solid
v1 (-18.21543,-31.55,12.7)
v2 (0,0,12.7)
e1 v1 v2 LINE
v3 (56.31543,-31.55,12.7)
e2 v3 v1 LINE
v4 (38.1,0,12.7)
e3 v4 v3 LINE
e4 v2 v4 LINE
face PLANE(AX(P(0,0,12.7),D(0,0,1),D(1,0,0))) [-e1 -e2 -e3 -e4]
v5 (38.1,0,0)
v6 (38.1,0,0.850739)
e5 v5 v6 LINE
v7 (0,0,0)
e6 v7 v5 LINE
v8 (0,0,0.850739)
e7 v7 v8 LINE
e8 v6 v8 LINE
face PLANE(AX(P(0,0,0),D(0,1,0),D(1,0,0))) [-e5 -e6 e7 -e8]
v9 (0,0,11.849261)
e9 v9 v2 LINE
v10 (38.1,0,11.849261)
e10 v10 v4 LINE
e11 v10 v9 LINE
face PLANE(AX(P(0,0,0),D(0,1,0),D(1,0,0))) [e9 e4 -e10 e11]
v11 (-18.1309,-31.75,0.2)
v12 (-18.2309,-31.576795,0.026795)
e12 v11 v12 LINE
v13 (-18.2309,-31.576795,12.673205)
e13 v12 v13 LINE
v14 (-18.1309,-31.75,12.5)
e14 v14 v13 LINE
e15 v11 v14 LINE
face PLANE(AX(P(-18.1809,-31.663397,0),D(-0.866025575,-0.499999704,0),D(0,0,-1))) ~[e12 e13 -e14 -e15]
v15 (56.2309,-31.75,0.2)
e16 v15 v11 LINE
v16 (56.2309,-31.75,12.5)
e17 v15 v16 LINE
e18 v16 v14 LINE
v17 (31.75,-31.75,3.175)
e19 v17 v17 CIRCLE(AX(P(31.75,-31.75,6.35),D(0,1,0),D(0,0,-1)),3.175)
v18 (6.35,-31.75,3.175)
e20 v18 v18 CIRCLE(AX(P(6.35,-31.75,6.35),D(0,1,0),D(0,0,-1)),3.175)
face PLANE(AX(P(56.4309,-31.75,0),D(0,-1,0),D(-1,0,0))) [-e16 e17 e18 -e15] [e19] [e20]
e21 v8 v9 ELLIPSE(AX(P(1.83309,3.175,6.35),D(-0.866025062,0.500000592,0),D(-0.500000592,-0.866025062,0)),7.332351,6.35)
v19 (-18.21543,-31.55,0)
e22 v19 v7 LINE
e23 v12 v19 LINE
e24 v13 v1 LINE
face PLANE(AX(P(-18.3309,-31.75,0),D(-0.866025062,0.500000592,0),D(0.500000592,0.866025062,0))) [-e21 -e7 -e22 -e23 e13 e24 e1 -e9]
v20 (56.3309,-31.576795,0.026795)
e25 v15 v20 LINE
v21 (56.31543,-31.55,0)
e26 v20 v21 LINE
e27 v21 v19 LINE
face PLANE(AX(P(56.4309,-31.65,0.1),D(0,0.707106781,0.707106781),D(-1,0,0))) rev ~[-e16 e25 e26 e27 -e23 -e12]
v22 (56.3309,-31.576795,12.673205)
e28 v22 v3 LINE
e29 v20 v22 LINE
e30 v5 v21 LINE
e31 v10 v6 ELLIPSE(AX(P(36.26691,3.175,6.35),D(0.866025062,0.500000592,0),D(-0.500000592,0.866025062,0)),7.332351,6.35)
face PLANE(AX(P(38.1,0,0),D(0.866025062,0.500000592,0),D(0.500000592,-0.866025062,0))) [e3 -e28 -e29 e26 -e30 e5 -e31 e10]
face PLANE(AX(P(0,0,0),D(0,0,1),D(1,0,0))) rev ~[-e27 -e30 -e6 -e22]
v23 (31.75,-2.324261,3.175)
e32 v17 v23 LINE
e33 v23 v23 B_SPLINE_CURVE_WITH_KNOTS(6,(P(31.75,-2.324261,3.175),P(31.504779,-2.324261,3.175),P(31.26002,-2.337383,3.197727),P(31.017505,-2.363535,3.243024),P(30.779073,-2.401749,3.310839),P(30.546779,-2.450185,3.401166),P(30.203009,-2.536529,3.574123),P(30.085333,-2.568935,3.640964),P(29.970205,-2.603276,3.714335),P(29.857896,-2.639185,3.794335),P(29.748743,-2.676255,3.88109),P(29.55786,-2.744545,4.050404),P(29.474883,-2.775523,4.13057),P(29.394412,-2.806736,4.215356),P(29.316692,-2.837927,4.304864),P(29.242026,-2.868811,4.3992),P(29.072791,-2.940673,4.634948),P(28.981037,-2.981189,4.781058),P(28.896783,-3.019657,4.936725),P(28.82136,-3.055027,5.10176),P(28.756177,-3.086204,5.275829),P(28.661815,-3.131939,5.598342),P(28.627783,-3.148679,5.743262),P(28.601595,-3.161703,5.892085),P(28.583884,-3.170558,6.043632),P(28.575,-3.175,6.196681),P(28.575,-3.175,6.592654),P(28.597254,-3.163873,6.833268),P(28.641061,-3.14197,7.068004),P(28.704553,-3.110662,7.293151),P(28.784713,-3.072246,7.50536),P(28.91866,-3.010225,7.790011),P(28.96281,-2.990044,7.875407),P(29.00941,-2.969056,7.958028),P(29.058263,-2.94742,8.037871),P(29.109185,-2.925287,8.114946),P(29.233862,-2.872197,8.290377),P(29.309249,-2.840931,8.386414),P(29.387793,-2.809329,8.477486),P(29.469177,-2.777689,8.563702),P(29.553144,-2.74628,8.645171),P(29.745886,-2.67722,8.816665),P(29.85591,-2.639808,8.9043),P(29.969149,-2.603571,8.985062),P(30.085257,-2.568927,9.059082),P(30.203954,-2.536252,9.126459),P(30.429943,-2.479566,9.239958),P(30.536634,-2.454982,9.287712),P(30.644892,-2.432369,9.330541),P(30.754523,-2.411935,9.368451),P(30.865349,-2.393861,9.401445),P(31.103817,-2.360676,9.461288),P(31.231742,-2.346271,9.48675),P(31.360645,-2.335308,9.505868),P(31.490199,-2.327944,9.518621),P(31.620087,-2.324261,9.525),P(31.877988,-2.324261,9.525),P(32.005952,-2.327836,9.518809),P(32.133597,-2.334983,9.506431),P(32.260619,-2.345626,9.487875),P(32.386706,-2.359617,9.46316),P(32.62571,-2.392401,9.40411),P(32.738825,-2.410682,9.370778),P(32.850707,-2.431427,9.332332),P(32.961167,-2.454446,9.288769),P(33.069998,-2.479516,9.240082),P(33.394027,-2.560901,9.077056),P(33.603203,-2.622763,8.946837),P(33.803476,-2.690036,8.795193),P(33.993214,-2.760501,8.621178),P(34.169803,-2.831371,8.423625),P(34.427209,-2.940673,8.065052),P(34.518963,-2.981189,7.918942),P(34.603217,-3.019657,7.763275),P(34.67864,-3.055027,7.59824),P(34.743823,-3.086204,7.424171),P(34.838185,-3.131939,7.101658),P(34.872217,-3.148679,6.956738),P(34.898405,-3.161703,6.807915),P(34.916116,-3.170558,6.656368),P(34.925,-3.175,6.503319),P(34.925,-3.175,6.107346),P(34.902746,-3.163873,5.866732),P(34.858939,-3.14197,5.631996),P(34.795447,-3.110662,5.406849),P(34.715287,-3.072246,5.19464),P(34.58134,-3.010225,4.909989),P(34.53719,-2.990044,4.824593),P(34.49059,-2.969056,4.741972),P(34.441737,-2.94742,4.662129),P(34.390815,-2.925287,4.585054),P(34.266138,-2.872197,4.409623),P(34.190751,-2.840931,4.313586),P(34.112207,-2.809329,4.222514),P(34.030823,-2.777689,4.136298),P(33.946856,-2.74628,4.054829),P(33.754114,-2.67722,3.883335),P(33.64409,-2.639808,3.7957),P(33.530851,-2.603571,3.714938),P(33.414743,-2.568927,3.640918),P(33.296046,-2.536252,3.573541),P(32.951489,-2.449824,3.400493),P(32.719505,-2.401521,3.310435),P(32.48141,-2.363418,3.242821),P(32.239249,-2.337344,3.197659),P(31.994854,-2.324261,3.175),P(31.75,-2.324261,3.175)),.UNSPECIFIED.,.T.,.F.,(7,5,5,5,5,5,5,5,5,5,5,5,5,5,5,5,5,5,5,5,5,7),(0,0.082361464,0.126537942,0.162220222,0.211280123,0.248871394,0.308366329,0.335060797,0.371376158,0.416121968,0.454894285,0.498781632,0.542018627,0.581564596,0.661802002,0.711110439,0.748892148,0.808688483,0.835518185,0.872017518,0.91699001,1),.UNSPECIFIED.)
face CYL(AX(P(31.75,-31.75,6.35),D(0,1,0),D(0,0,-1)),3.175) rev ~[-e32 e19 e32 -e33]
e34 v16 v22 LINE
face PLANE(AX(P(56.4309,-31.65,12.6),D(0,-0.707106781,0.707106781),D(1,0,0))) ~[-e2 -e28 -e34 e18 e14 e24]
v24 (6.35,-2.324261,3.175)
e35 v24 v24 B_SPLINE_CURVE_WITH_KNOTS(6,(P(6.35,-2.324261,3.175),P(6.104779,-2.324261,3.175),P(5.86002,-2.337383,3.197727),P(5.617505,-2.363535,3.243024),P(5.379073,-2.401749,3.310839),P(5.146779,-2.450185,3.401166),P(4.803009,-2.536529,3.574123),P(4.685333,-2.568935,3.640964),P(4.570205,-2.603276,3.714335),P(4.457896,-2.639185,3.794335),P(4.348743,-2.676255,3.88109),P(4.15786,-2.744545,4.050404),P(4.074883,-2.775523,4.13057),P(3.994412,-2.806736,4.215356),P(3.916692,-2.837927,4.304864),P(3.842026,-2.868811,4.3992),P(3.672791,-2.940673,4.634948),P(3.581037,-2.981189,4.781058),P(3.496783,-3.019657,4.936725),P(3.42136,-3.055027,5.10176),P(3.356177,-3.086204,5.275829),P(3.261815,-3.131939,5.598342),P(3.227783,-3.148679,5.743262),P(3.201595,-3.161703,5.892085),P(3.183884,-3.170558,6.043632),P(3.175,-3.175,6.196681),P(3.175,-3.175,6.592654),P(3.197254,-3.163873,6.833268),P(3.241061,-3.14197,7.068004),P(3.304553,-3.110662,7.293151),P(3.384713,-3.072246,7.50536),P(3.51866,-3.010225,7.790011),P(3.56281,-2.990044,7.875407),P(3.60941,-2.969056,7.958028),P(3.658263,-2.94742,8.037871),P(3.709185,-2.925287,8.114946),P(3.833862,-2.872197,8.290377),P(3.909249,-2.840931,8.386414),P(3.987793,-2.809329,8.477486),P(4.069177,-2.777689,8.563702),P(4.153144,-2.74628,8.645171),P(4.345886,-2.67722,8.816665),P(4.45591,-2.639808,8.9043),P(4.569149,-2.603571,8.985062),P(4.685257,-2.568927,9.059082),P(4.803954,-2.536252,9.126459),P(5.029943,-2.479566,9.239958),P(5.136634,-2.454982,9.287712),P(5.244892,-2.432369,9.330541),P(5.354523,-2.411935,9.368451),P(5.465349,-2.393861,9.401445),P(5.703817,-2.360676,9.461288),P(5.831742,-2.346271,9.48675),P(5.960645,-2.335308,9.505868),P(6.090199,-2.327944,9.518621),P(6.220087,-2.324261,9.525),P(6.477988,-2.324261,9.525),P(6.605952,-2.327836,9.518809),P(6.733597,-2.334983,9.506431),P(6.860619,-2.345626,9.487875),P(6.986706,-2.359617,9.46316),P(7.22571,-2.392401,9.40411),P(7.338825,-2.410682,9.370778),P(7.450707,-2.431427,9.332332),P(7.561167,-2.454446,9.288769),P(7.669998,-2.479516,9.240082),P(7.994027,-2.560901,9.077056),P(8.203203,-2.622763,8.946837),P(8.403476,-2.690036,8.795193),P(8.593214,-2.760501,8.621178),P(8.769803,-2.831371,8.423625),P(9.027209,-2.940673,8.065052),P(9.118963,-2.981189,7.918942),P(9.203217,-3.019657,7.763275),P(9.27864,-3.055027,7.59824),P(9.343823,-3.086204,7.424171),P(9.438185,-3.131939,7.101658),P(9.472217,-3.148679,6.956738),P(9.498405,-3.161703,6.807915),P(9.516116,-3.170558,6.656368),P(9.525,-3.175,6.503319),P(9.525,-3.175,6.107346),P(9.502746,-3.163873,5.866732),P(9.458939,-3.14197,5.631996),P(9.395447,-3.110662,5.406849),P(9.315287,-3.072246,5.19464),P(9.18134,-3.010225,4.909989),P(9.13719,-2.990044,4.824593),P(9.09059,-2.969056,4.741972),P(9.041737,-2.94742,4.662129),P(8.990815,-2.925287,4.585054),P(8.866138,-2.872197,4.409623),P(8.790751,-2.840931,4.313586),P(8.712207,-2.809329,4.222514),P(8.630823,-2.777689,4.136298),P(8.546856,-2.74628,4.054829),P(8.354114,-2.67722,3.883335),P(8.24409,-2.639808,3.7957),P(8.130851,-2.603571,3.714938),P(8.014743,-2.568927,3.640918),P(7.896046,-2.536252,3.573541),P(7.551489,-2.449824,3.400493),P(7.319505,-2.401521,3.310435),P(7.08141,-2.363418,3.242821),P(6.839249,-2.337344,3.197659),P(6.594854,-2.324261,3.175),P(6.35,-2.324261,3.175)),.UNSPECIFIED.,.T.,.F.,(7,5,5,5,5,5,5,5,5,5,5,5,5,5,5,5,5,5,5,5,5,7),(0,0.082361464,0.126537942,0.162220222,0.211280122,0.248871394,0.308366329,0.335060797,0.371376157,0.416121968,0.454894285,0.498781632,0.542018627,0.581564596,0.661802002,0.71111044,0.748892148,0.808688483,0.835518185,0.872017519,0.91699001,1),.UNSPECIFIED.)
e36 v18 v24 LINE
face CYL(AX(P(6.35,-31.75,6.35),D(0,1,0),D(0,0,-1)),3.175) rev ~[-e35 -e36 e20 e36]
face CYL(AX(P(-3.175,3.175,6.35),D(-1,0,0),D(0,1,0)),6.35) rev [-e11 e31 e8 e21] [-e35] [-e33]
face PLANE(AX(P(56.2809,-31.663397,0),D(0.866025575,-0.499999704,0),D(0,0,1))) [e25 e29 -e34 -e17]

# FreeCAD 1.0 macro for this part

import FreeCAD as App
import Part
import Sketcher

V = App.Vector
Q = App.Units.Quantity


def edges_at(feature, points):
    """Names of the edges that pass closest to the given points."""
    edges = feature.Shape.Edges
    near = lambda p: min(range(len(edges)), key=lambda i: edges[i].distToShape(Part.Vertex(*p))[0])
    return sorted({f"Edge{near(p) + 1}" for p in points})

doc = App.newDocument("Part")
params = doc.addObject("Spreadsheet::Sheet", "Params")
for row, (alias, value) in enumerate([
    ("sketch1_width", "1.5 in"),
    ("pad1_length", "0.5 in"),
    ("sketch2_diameter", "0.5 in"),
    ("sketch3_diameter", "0.25 in"),
    ("hole_diameter", "0.25 in"),
    ("chamfer_size", "0.2 mm"),
], start=1):
    params.set(f"A{row}", alias)
    params.set(f"B{row}", "=" + value)
    params.setAlias(f"B{row}", alias)

body = doc.addObject("PartDesign::Body", "Body")

sketch1 = body.newObject("Sketcher::SketchObject", "Sketch")
sketch1.AttachmentSupport = (doc.getObject("XY_Plane"), [""])
sketch1.MapMode = "FlatFace"
sketch1.addGeometry(Part.LineSegment(V(38, 0, 0), V(0, 0, 0)), False)
sketch1.addGeometry(Part.LineSegment(V(0, 0, 0), V(-18, -32, 0)), False)
sketch1.addGeometry(Part.LineSegment(V(-18, -32, 0), V(56, -32, 0)), False)
sketch1.addGeometry(Part.LineSegment(V(56, -32, 0), V(38, 0, 0)), False)
sketch1.addConstraint(Sketcher.Constraint("Coincident", 0, 2, 1, 1))
sketch1.addConstraint(Sketcher.Constraint("Coincident", 1, 2, 2, 1))
sketch1.addConstraint(Sketcher.Constraint("Coincident", 2, 2, 3, 1))
sketch1.addConstraint(Sketcher.Constraint("Coincident", 3, 2, 0, 1))
sketch1.addConstraint(Sketcher.Constraint("Horizontal", 0))
sketch1.addConstraint(Sketcher.Constraint("Horizontal", 2))
sketch1.addConstraint(Sketcher.Constraint("Coincident", 0, 2, -1, 1))
sketch1.addConstraint(Sketcher.Constraint("Equal", 1, 3))
sketch1.addConstraint(Sketcher.Constraint("DistanceX", 0, 2, 0, 1, Q("1.5 in")))
sketch1.addConstraint(Sketcher.Constraint("DistanceY", 1, 2, -1, 1, Q("1.25 in")))
sketch1.addConstraint(Sketcher.Constraint("Angle", 1, Q("-120 deg")))
sketch1.setExpression("Constraints[8]", "Params.sketch1_width")
pad1 = body.newObject("PartDesign::Pad", "Pad")
pad1.Profile = sketch1
pad1.setExpression("Length", "Params.pad1_length")

sketch2 = body.newObject("Sketcher::SketchObject", "Sketch001")
sketch2.AttachmentSupport = (doc.getObject("YZ_Plane"), [""])
sketch2.MapMode = "FlatFace"
sketch2.AttachmentOffset = App.Placement(V(0, 0, -0.125 * 25.4), App.Rotation())
sketch2.addGeometry(Part.Circle(V(3, 6, 0), V(0, 0, 1), 6), False)
sketch2.addConstraint(Sketcher.Constraint("Diameter", 0, Q("0.5 in")))
sketch2.addConstraint(Sketcher.Constraint("DistanceX", -1, 1, 0, 3, Q("0.125 in")))
sketch2.addConstraint(Sketcher.Constraint("DistanceY", -1, 1, 0, 3, Q("0.25 in")))
sketch2.setExpression("Constraints[0]", "Params.sketch2_diameter")
pocket1 = body.newObject("PartDesign::Pocket", "Pocket")
pocket1.Profile = sketch2
pocket1.Type = "ThroughAll"
pocket1.Reversed = True

sketch3 = body.newObject("Sketcher::SketchObject", "Sketch002")
sketch3.AttachmentSupport = (doc.getObject("XZ_Plane"), [""])
sketch3.MapMode = "FlatFace"
sketch3.AttachmentOffset = App.Placement(V(0, 0, 1.25 * 25.4), App.Rotation())
sketch3.addGeometry(Part.Circle(V(6.3, 6.3, 0), V(0, 0, 1), 3.2), False)
sketch3.addGeometry(Part.Circle(V(31.8, 6.3, 0), V(0, 0, 1), 3.2), False)
sketch3.addConstraint(Sketcher.Constraint("Equal", 0, 1))
sketch3.addConstraint(Sketcher.Constraint("Horizontal", 0, 3, 1, 3))
sketch3.addConstraint(Sketcher.Constraint("Diameter", 0, Q("0.25 in")))
sketch3.addConstraint(Sketcher.Constraint("DistanceX", 0, 3, 1, 3, Q("1 in")))
sketch3.addConstraint(Sketcher.Constraint("DistanceX", -1, 1, 0, 3, Q("0.25 in")))
sketch3.addConstraint(Sketcher.Constraint("DistanceY", -1, 1, 0, 3, Q("0.25 in")))
sketch3.setExpression("Constraints[2]", "Params.sketch3_diameter")
doc.recompute()
hole = body.newObject("PartDesign::Hole", "Hole")
hole.Profile = sketch3
hole.ThreadType = "None"
hole.setExpression("Diameter", "Params.hole_diameter")
hole.DepthType = "ThroughAll"
doc.recompute()

chamfer = body.newObject("PartDesign::Chamfer", "Chamfer")
chamfer.Base = (hole, edges_at(hole, [
    (19.05, -31.75, 12.7),
    (-18.331, -31.75, 6.35),
    (19.05, -31.75, 0),
    (56.431, -31.75, 6.35),
]))
chamfer.setExpression("Size", "Params.chamfer_size")

doc.recompute()
